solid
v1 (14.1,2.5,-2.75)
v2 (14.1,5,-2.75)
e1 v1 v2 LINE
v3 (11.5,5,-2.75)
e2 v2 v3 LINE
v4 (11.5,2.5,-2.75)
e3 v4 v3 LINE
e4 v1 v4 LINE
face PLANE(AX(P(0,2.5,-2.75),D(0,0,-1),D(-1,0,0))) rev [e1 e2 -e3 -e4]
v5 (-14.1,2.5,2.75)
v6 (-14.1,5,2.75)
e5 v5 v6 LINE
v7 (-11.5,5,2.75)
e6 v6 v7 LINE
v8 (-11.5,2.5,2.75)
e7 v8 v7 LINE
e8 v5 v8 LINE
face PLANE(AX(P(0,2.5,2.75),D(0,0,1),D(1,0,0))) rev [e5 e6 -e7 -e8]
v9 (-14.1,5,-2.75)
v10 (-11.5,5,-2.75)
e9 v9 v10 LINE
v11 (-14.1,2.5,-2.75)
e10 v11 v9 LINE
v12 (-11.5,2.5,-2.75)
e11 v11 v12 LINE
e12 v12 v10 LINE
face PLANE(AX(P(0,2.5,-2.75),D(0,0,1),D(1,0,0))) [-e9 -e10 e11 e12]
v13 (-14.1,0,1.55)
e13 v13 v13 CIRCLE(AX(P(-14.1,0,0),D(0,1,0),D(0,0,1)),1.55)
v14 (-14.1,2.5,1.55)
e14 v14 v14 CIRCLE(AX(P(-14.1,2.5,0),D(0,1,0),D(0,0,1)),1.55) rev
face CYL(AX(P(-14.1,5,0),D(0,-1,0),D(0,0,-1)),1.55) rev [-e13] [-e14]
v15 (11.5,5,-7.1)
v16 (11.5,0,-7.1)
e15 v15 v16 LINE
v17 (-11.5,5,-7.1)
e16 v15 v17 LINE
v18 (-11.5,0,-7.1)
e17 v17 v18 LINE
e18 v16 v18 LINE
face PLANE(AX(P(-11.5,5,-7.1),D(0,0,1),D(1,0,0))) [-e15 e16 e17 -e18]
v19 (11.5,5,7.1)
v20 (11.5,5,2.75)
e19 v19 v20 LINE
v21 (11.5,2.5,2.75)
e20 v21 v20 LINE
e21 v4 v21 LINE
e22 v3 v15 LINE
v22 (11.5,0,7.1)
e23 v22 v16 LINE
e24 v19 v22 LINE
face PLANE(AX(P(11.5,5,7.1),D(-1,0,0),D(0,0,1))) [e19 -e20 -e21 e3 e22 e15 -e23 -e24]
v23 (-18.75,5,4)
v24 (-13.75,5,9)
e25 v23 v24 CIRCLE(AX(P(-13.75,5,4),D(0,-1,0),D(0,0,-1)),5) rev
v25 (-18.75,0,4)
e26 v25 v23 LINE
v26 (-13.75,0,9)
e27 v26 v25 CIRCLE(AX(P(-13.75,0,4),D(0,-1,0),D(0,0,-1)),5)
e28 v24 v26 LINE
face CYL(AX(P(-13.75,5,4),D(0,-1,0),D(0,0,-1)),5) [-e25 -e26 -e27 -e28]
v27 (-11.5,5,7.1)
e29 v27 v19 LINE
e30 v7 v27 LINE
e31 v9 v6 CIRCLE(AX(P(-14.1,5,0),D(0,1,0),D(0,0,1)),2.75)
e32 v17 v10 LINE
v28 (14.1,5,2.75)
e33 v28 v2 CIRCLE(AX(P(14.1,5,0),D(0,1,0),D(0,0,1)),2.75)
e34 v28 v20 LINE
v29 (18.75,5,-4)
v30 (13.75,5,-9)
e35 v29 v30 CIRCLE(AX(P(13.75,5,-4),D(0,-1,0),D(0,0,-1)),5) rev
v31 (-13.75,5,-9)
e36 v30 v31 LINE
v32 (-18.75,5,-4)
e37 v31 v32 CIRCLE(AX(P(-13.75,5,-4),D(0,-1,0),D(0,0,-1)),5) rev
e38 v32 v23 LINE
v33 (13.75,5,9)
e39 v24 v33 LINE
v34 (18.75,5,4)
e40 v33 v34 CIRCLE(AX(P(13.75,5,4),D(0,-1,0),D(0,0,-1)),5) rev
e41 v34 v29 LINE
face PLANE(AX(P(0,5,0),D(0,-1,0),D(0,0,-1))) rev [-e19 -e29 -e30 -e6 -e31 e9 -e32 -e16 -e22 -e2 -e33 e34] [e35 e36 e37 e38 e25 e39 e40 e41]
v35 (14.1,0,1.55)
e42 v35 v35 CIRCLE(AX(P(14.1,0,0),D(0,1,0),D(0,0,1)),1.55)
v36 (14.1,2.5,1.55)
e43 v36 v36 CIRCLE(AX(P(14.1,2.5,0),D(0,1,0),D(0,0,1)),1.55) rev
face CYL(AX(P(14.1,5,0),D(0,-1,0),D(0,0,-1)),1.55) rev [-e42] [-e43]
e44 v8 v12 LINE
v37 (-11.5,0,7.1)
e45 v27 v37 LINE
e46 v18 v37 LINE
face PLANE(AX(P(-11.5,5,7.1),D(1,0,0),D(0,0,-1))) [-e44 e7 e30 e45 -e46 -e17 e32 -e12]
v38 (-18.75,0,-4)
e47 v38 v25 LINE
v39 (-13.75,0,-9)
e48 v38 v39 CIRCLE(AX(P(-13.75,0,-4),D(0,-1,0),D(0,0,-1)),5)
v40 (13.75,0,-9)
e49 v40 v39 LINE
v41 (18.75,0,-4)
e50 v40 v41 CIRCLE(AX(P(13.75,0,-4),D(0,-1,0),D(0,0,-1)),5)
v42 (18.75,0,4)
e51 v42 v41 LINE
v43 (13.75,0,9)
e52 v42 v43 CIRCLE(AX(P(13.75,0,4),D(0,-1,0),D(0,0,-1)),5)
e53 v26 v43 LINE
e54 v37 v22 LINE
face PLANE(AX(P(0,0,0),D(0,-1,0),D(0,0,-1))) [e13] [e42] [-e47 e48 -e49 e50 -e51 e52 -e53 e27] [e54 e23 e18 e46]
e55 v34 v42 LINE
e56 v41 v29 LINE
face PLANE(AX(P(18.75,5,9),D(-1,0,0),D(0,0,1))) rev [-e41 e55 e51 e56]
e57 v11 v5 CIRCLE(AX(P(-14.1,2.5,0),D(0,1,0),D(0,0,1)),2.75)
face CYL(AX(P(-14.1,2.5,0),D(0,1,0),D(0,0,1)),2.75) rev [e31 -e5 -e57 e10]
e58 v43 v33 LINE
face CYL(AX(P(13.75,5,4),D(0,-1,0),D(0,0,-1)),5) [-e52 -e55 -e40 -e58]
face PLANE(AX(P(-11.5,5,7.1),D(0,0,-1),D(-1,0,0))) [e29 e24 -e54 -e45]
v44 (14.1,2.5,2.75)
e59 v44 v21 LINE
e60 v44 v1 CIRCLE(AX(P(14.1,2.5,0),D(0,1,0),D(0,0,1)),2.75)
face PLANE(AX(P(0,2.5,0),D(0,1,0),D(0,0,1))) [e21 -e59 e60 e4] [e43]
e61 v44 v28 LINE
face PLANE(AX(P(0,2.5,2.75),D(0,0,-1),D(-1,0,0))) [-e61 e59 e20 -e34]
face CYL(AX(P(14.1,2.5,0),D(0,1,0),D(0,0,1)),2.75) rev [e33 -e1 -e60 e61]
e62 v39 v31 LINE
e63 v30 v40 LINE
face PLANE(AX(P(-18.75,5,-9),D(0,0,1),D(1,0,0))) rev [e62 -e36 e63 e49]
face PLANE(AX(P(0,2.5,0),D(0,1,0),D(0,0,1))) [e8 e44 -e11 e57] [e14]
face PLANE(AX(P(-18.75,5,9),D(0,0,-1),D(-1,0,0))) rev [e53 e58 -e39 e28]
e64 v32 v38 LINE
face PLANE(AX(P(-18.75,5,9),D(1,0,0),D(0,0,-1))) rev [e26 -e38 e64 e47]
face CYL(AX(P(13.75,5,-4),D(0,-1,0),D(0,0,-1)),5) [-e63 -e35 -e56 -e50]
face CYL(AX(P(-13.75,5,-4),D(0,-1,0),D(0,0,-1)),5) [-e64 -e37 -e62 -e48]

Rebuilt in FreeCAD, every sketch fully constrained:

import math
import FreeCAD as App
import Part
import Sketcher
from FreeCAD import Vector
Q = App.Units.Quantity


def edges_at(feature, points):
    """Names of the edges that pass closest to the given points."""
    edges = feature.Shape.Edges
    near = lambda p: min(range(len(edges)), key=lambda i: edges[i].distToShape(Part.Vertex(*p))[0])
    return sorted({f"Edge{near(p) + 1}" for p in points})

doc = App.newDocument("Part")
body = doc.addObject("PartDesign::Body", "Body")

sketch1 = body.newObject("Sketcher::SketchObject", "Sketch")
sketch1.AttachmentSupport = (doc.getObject("XZ_Plane"), [""])
sketch1.MapMode = "FlatFace"
sketch1.addGeometry(Part.LineSegment(Vector(-18.8, -9, 0), Vector(-18.8, 9, 0)), False)
sketch1.addGeometry(Part.LineSegment(Vector(-18.8, 9, 0), Vector(18.8, 9, 0)), False)
sketch1.addGeometry(Part.LineSegment(Vector(18.8, 9, 0), Vector(18.8, -9, 0)), False)
sketch1.addGeometry(Part.LineSegment(Vector(18.8, -9, 0), Vector(-18.8, -9, 0)), False)
sketch1.addGeometry(Part.Circle(Vector(-14.1, 0, 0), Vector(0, 0, 1), 1.6), False)
sketch1.addGeometry(Part.LineSegment(Vector(11.5, 7.1, 0), Vector(-11.5, 7.1, 0)), False)
sketch1.addGeometry(Part.LineSegment(Vector(-11.5, 7.1, 0), Vector(-11.5, -7.1, 0)), False)
sketch1.addGeometry(Part.LineSegment(Vector(-11.5, -7.1, 0), Vector(11.5, -7.1, 0)), False)
sketch1.addGeometry(Part.LineSegment(Vector(11.5, -7.1, 0), Vector(11.5, 7.1, 0)), False)
sketch1.addGeometry(Part.Circle(Vector(14.1, 0, 0), Vector(0, 0, 1), 1.6), False)
sketch1.addConstraint(Sketcher.Constraint("Coincident", 0, 2, 1, 1))
sketch1.addConstraint(Sketcher.Constraint("Coincident", 1, 2, 2, 1))
sketch1.addConstraint(Sketcher.Constraint("Coincident", 2, 2, 3, 1))
sketch1.addConstraint(Sketcher.Constraint("Coincident", 3, 2, 0, 1))
sketch1.addConstraint(Sketcher.Constraint("Coincident", 5, 2, 6, 1))
sketch1.addConstraint(Sketcher.Constraint("Coincident", 6, 2, 7, 1))
sketch1.addConstraint(Sketcher.Constraint("Coincident", 7, 2, 8, 1))
sketch1.addConstraint(Sketcher.Constraint("Coincident", 8, 2, 5, 1))
sketch1.addConstraint(Sketcher.Constraint("Vertical", 0))
sketch1.addConstraint(Sketcher.Constraint("Horizontal", 1))
sketch1.addConstraint(Sketcher.Constraint("Vertical", 2))
sketch1.addConstraint(Sketcher.Constraint("Horizontal", 3))
sketch1.addConstraint(Sketcher.Constraint("Horizontal", 5))
sketch1.addConstraint(Sketcher.Constraint("Vertical", 6))
sketch1.addConstraint(Sketcher.Constraint("Horizontal", 7))
sketch1.addConstraint(Sketcher.Constraint("Vertical", 8))
sketch1.addConstraint(Sketcher.Constraint("Equal", 4, 9))
sketch1.addConstraint(Sketcher.Constraint("Symmetric", 4, 3, 9, 3, -1, 1))
sketch1.addConstraint(Sketcher.Constraint("Symmetric", 0, 2, 2, 2, -1, 1))
sketch1.addConstraint(Sketcher.Constraint("Symmetric", 5, 2, 7, 2, -1, 1))
sketch1.addConstraint(Sketcher.Constraint("PointOnObject", 4, 3, -1))
sketch1.addConstraint(Sketcher.Constraint("Diameter", 4, Q("3.1 mm")))
sketch1.addConstraint(Sketcher.Constraint("DistanceX", 5, 2, 5, 1, Q("23 mm")))
sketch1.addConstraint(Sketcher.Constraint("DistanceY", 0, 1, 0, 2, Q("18 mm")))
sketch1.addConstraint(Sketcher.Constraint("DistanceX", 1, 1, 1, 2, Q("37.5 mm")))
sketch1.addConstraint(Sketcher.Constraint("DistanceY", 6, 2, 6, 1, Q("14.2 mm")))
sketch1.addConstraint(Sketcher.Constraint("DistanceX", 4, 3, -1, 1, Q("14.1 mm")))
pad1 = body.newObject("PartDesign::Pad", "Pad")
pad1.Profile = sketch1
pad1.Length = 5
pad1.Reversed = True

sketch2 = body.newObject("Sketcher::SketchObject", "Sketch001")
sketch2.AttachmentSupport = (doc.getObject("XZ_Plane"), [""])
sketch2.MapMode = "FlatFace"
sketch2.AttachmentOffset = App.Placement(Vector(0, 0, -5), App.Rotation())
sketch2.addGeometry(Part.LineSegment(Vector(14.1, -2.8, 0), Vector(11.5, -2.8, 0)), False)
sketch2.addGeometry(Part.LineSegment(Vector(11.5, -2.8, 0), Vector(11.5, 2.8, 0)), False)
sketch2.addGeometry(Part.LineSegment(Vector(11.5, 2.8, 0), Vector(14.1, 2.8, 0)), False)
sketch2.addGeometry(Part.ArcOfCircle(Part.Circle(Vector(14.1, 0, 0), Vector(0, 0, 1), 2.8), math.radians(0), math.radians(90)), False)
sketch2.addGeometry(Part.ArcOfCircle(Part.Circle(Vector(14.1, 0, 0), Vector(0, 0, 1), 2.8), math.radians(-90), math.radians(0)), False)
sketch2.addGeometry(Part.Circle(Vector(14.1, 0, 0), Vector(0, 0, 1), 1.6), False)
sketch2.addGeometry(Part.LineSegment(Vector(-14.1, 2.8, 0), Vector(-11.5, 2.8, 0)), False)
sketch2.addGeometry(Part.LineSegment(Vector(-11.5, 2.8, 0), Vector(-11.5, -2.8, 0)), False)
sketch2.addGeometry(Part.LineSegment(Vector(-11.5, -2.8, 0), Vector(-14.1, -2.8, 0)), False)
sketch2.addGeometry(Part.ArcOfCircle(Part.Circle(Vector(-14.1, 0, 0), Vector(0, 0, 1), 2.8), math.radians(90), math.radians(270)), False)
sketch2.addGeometry(Part.Circle(Vector(-14.1, 0, 0), Vector(0, 0, 1), 1.6), False)
sketch2.addConstraint(Sketcher.Constraint("Coincident", 0, 2, 1, 1))
sketch2.addConstraint(Sketcher.Constraint("Coincident", 1, 2, 2, 1))
sketch2.addConstraint(Sketcher.Constraint("Tangent", 2, 2, 3, 2))
sketch2.addConstraint(Sketcher.Constraint("Tangent", 3, 1, 4, 2))
sketch2.addConstraint(Sketcher.Constraint("Tangent", 4, 1, 0, 1))
sketch2.addConstraint(Sketcher.Constraint("Coincident", 6, 2, 7, 1))
sketch2.addConstraint(Sketcher.Constraint("Coincident", 7, 2, 8, 1))
sketch2.addConstraint(Sketcher.Constraint("Tangent", 8, 2, 9, 2))
sketch2.addConstraint(Sketcher.Constraint("Tangent", 9, 1, 6, 1))
sketch2.addConstraint(Sketcher.Constraint("Horizontal", 0))
sketch2.addConstraint(Sketcher.Constraint("Vertical", 1))
sketch2.addConstraint(Sketcher.Constraint("Horizontal", 2))
sketch2.addConstraint(Sketcher.Constraint("Horizontal", 6))
sketch2.addConstraint(Sketcher.Constraint("Vertical", 7))
sketch2.addConstraint(Sketcher.Constraint("Horizontal", 8))
sketch2.addConstraint(Sketcher.Constraint("Coincident", 5, 3, 3, 3))
sketch2.addConstraint(Sketcher.Constraint("Coincident", 10, 3, 9, 3))
sketch2.addConstraint(Sketcher.Constraint("Equal", 3, 4))
sketch2.addConstraint(Sketcher.Constraint("Equal", 4, 9))
sketch2.addConstraint(Sketcher.Constraint("Equal", 5, 10))
sketch2.addConstraint(Sketcher.Constraint("Symmetric", 3, 3, 9, 3, -1, 1))
sketch2.addConstraint(Sketcher.Constraint("Symmetric", 1, 2, 6, 2, -2))
sketch2.addConstraint(Sketcher.Constraint("PointOnObject", 3, 1, -1))
sketch2.addConstraint(Sketcher.Constraint("Diameter", 5, Q("3.1 mm")))
sketch2.addConstraint(Sketcher.Constraint("Radius", 3, Q("2.75 mm")))
sketch2.addConstraint(Sketcher.Constraint("DistanceX", 0, 2, 0, 1, Q("2.6 mm")))
sketch2.addConstraint(Sketcher.Constraint("DistanceX", 6, 2, 1, 2, Q("23 mm")))
pocket1 = body.newObject("PartDesign::Pocket", "Pocket")
pocket1.Profile = sketch2
pocket1.Length = 2.5
pocket1.Reversed = True
doc.recompute()

fillet = body.newObject("PartDesign::Fillet", "Fillet")
fillet.Base = (pocket1, edges_at(pocket1, [
    (18.75, 2.5, 9),
    (-18.75, 2.5, 9),
    (-18.75, 2.5, -9),
    (18.75, 2.5, -9),
]))
fillet.Radius = 5

doc.recompute()
